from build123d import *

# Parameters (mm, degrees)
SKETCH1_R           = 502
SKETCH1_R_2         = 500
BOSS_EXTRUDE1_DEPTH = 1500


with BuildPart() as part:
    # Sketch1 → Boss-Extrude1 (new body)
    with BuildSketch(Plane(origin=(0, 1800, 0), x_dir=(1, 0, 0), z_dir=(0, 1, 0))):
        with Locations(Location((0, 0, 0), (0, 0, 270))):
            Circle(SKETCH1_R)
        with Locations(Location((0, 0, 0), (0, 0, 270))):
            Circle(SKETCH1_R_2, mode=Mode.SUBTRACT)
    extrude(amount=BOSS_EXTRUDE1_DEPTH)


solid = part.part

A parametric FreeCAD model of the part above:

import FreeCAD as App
import Part
import Sketcher

V = App.Vector
Q = App.Units.Quantity

doc = App.newDocument("Part")
params = doc.addObject("Spreadsheet::Sheet", "Params")
for row, (alias, value) in enumerate([
    ("sketch1_diameter", "1004 mm"),
    ("sketch1_diameter2", "1000 mm"),
    ("pad1_length", "1500 mm"),
], start=1):
    params.set(f"A{row}", alias)
    params.set(f"B{row}", "=" + value)
    params.setAlias(f"B{row}", alias)

body = doc.addObject("PartDesign::Body", "Body")

# Sketch on XZ plane
sketch1 = body.newObject("Sketcher::SketchObject", "Sketch")
sketch1.AttachmentSupport = (doc.getObject("XZ_Plane"), [""])
sketch1.MapMode = "FlatFace"
sketch1.AttachmentOffset = App.Placement(V(0, 0, -1800), App.Rotation())
sketch1.addGeometry([
    Part.Circle(V(0, 0, 0), V(0, 0, 1), 502),
    Part.Circle(V(0, 0, 0), V(0, 0, 1), 500),
], False)
sketch1.addConstraint([
    Sketcher.Constraint("Coincident", 0, 3, -1, 1),
    Sketcher.Constraint("Coincident", 1, 3, -1, 1),
    Sketcher.Constraint("Diameter", 0, Q("1004 mm")),
    Sketcher.Constraint("Diameter", 1, Q("1000 mm")),
])
sketch1.setExpression("Constraints[2]", "Params.sketch1_diameter")
sketch1.setExpression("Constraints[3]", "Params.sketch1_diameter2")
pad1 = body.newObject("PartDesign::Pad", "Pad")
pad1.Profile = sketch1
pad1.setExpression("Length", "Params.pad1_length")
pad1.Reversed = True

doc.recompute()
